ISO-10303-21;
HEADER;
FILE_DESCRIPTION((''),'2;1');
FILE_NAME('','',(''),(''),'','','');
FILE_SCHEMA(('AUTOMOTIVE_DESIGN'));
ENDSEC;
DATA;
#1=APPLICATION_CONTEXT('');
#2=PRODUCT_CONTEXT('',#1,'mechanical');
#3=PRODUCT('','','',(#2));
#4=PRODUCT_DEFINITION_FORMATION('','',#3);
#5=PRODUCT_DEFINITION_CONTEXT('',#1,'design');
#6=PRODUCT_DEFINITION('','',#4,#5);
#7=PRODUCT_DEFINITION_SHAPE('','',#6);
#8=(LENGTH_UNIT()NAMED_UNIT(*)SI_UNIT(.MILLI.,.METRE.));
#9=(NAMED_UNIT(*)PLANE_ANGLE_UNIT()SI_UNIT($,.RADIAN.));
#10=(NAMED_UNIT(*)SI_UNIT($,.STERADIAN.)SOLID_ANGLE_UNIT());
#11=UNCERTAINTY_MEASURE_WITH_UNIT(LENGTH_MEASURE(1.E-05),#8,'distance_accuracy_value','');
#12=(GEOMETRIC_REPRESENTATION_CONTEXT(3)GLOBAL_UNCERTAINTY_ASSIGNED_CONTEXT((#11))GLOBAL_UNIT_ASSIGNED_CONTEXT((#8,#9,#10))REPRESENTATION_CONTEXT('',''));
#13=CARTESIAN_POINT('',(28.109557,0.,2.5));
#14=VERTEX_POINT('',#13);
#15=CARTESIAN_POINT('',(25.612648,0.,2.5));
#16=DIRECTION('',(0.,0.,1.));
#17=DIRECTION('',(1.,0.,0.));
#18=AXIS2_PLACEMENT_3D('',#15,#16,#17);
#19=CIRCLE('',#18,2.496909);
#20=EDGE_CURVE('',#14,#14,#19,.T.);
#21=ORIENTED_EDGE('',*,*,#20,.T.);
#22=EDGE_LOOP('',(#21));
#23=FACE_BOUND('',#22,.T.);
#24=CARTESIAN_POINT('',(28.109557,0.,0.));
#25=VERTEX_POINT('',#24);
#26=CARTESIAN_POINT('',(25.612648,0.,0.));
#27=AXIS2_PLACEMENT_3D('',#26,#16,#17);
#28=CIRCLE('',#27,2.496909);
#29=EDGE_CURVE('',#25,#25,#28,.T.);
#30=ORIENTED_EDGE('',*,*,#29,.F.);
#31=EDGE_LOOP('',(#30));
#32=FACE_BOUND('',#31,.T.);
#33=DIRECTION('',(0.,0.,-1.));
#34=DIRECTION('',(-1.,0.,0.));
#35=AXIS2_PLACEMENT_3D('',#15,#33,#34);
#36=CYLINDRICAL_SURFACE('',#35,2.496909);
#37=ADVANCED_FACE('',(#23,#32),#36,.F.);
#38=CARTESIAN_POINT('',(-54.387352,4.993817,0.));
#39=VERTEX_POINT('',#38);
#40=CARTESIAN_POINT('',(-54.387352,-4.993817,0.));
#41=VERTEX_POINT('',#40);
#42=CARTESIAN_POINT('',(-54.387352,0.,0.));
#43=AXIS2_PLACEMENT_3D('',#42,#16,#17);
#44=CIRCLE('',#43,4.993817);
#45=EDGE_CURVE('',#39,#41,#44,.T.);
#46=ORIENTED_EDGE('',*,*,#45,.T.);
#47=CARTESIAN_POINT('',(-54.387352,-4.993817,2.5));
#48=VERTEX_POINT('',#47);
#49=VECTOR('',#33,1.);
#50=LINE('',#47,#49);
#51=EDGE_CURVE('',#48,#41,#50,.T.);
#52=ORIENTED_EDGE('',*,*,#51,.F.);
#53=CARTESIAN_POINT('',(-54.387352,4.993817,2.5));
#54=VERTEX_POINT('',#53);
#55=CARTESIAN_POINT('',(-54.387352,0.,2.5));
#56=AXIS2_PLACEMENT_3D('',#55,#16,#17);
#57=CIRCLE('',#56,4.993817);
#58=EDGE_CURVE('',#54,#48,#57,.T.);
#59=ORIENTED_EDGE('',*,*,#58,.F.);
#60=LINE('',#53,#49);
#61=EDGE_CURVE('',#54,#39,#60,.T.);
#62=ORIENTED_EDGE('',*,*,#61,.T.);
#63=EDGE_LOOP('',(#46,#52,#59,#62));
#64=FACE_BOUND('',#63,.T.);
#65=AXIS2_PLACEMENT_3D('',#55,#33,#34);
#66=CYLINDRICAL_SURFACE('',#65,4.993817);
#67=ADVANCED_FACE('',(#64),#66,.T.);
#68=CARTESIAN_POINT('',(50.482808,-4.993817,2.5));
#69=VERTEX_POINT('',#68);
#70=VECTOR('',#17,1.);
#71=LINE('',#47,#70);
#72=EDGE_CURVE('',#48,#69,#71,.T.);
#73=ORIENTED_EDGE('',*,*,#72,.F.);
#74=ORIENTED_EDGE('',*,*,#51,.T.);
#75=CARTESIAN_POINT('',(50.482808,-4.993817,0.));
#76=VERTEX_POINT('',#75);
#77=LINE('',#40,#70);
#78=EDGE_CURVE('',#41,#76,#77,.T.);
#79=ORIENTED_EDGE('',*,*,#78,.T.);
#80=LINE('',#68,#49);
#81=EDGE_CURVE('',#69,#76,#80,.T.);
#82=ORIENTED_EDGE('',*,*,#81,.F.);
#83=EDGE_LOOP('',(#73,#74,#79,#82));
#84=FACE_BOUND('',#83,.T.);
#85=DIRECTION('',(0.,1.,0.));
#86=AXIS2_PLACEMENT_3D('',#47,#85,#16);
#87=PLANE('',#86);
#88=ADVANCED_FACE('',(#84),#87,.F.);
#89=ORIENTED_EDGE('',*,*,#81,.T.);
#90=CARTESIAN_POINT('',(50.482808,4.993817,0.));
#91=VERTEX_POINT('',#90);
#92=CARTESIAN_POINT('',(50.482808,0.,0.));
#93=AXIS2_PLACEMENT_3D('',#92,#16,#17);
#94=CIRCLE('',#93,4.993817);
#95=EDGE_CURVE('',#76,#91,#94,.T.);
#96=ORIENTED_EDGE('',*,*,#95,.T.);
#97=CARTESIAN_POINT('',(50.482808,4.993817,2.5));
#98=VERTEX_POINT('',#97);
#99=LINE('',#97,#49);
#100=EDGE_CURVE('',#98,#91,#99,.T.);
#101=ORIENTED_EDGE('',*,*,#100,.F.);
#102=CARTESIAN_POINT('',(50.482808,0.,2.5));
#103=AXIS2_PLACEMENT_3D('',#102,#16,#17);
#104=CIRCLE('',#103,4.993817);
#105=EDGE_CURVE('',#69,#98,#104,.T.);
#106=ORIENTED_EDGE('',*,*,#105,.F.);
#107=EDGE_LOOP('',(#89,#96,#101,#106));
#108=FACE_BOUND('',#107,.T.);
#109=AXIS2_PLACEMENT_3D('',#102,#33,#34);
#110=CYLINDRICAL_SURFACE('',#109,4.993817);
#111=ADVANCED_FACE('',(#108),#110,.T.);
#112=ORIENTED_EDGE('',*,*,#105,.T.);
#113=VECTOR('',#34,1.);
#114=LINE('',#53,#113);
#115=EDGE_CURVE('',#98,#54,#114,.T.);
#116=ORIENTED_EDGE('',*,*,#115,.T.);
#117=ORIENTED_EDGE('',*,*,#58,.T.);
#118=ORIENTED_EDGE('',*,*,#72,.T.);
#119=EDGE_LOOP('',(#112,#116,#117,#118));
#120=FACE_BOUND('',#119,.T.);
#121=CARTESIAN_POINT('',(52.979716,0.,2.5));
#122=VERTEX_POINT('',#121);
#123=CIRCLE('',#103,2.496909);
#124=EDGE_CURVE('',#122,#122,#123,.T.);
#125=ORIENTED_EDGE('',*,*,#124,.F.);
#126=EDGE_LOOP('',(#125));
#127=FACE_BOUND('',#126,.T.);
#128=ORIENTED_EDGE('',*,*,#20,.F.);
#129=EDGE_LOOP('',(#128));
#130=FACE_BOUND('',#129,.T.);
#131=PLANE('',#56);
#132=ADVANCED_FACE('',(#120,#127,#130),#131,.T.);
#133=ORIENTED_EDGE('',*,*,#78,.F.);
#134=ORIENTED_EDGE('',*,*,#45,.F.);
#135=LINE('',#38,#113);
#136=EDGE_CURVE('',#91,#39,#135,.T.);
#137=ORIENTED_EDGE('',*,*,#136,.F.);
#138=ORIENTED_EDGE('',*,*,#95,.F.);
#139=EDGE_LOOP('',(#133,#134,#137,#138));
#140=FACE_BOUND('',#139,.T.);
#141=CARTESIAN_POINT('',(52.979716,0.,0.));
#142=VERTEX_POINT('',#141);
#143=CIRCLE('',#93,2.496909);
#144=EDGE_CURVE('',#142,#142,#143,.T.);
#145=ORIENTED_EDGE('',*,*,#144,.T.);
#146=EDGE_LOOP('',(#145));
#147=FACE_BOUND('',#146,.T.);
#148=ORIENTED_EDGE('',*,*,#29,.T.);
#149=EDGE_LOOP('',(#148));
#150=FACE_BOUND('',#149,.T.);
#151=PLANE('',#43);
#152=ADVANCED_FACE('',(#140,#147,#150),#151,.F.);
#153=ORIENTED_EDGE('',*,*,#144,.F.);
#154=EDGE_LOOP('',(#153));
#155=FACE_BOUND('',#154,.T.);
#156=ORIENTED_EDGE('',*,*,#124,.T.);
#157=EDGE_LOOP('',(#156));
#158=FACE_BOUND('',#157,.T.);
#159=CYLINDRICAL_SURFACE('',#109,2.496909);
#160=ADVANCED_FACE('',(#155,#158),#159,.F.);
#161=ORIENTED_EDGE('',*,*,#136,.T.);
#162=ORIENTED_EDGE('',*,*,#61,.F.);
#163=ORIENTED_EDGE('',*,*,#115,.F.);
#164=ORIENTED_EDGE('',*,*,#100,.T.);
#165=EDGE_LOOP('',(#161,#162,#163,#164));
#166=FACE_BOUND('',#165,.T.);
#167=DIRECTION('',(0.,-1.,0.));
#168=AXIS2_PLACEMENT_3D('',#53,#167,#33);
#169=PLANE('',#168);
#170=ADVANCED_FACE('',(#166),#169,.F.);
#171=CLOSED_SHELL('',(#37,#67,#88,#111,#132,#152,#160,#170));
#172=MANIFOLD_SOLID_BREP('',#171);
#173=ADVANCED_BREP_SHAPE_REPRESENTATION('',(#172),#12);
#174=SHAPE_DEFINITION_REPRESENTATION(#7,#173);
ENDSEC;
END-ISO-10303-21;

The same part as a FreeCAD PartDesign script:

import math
import FreeCAD as App
import Part
import Sketcher

doc = App.newDocument("Part")
params = doc.addObject("Spreadsheet::Sheet", "Params")
for row, (alias, value) in enumerate([
    ("pad1_length", "2.5 mm"),
], start=1):
    params.set(f"A{row}", alias)
    params.set(f"B{row}", "=" + value)
    params.setAlias(f"B{row}", alias)

body = doc.addObject("PartDesign::Body", "Body")

# Sketch on XY plane
sketch1 = body.newObject("Sketcher::SketchObject", "Sketch")
sketch1.AttachmentSupport = (doc.getObject("XY_Plane"), [""])
sketch1.MapMode = "FlatFace"
sketch1.addGeometry([
    Part.LineSegment(App.Vector(50.5, 5, 0), App.Vector(-54.4, 5, 0)),  # 0
    Part.ArcOfCircle(Part.Circle(App.Vector(-54.4, 0, 0), App.Vector(0, 0, 1), 5), math.radians(90), math.radians(270)),  # 1
    Part.LineSegment(App.Vector(-54.4, -5, 0), App.Vector(50.5, -5, 0)),  # 2
    Part.ArcOfCircle(Part.Circle(App.Vector(50.5, 0, 0), App.Vector(0, 0, 1), 5), math.radians(-90), math.radians(90)),  # 3
    Part.Circle(App.Vector(50.5, 0, 0), App.Vector(0, 0, 1), 2.5),  # 4
    Part.Circle(App.Vector(25.6, 0, 0), App.Vector(0, 0, 1), 2.5),  # 5
], False)
sketch1.addConstraint([
    Sketcher.Constraint("Tangent", 0, 2, 1, 1),
    Sketcher.Constraint("Tangent", 1, 2, 2, 1),
    Sketcher.Constraint("Tangent", 2, 2, 3, 1),
    Sketcher.Constraint("Tangent", 3, 2, 0, 1),
    Sketcher.Constraint("Horizontal", 0),
    Sketcher.Constraint("Horizontal", 2),
    Sketcher.Constraint("Coincident", 4, 3, 3, 3),
    Sketcher.Constraint("Equal", 4, 5),
    Sketcher.Constraint("PointOnObject", 1, 3, -1),
    Sketcher.Constraint("PointOnObject", 5, 3, -1),
    Sketcher.Constraint("DistanceX", 1, 3, 5, 3, 80.0),
    Sketcher.Constraint("Diameter", 4, 4.993817),
    Sketcher.Constraint("Radius", 1, 4.993817),
    Sketcher.Constraint("DistanceX", 0, 2, 0, 1, 104.87016),
    Sketcher.Constraint("DistanceX", 1, 3, -1, 1, 54.387352),
])
pad1 = body.newObject("PartDesign::Pad", "Pad")
pad1.Profile = sketch1
pad1.setExpression("Length", "Params.pad1_length")

doc.recompute()
